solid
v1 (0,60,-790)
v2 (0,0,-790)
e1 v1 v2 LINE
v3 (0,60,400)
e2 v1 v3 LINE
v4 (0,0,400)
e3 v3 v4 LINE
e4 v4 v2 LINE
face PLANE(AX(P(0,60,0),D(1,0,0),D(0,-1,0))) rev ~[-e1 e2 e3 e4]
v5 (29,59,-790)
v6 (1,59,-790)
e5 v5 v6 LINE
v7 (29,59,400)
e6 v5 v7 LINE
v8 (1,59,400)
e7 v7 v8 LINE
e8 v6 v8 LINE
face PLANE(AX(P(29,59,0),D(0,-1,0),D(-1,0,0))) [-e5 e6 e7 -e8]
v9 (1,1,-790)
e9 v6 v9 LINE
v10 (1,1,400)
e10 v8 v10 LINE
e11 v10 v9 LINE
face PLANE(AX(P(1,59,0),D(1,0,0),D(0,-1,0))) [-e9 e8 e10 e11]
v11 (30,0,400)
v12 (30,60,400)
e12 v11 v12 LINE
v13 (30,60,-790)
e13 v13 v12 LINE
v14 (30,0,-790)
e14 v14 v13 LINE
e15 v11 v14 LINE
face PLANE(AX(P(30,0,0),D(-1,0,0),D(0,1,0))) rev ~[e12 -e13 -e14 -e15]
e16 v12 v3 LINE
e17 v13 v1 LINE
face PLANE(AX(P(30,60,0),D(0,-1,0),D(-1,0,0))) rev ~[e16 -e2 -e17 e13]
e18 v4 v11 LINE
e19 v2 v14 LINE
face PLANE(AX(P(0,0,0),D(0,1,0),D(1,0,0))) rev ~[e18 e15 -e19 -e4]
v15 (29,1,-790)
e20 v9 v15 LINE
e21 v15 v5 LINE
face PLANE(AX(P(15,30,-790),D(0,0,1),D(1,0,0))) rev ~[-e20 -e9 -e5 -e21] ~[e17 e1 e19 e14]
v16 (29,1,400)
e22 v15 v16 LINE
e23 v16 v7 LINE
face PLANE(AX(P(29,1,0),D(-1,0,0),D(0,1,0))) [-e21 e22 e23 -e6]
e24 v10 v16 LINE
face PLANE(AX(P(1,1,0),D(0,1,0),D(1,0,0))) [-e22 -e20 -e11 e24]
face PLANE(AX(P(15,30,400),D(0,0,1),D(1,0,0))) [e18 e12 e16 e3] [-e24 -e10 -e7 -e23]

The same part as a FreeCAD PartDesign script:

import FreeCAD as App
import Part
import Sketcher
from FreeCAD import Vector
Q = App.Units.Quantity


def add_polygon(sketch, points):
    """Adds a closed chain of lines whose ends are joined by coincident constraints."""
    first, n = sketch.GeometryCount, len(points)
    for a, b in zip(points, points[1:] + points[:1]):
        sketch.addGeometry(Part.LineSegment(App.Vector(*a, 0), App.Vector(*b, 0)), False)
    for i in range(n):
        sketch.addConstraint(Sketcher.Constraint("Coincident", first + i, 2, first + (i + 1) % n, 1))

doc = App.newDocument("Part")
params = doc.addObject("Spreadsheet::Sheet", "Params")
for row, (alias, value) in enumerate([
    ("sketch1_width", "30 mm"),
    ("sketch1_width2", "28 mm"),
    ("sketch1_height", "60 mm"),
    ("sketch1_height2", "58 mm"),
    ("pad1_length", "400 mm"),
    ("sketch2_width", "30 mm"),
    ("sketch2_width2", "28 mm"),
    ("sketch2_height", "60 mm"),
    ("sketch2_height2", "58 mm"),
    ("pad2_length", "790 mm"),
], start=1):
    params.set(f"A{row}", alias)
    params.set(f"B{row}", "=" + value)
    params.setAlias(f"B{row}", alias)

body = doc.addObject("PartDesign::Body", "Body")

sketch1 = body.newObject("Sketcher::SketchObject", "Sketch")
sketch1.AttachmentSupport = (doc.getObject("XY_Plane"), [""])
sketch1.MapMode = "FlatFace"
add_polygon(sketch1, [(0, 0), (30, 0), (30, 60), (0, 60)])
add_polygon(sketch1, [(29, 59), (29, 1), (1, 1), (1, 59)])
sketch1.addConstraint([
    Sketcher.Constraint("Horizontal", 0),
    Sketcher.Constraint("Vertical", 1),
    Sketcher.Constraint("Horizontal", 2),
    Sketcher.Constraint("Vertical", 3),
    Sketcher.Constraint("Vertical", 4),
    Sketcher.Constraint("Horizontal", 5),
    Sketcher.Constraint("Vertical", 6),
    Sketcher.Constraint("Horizontal", 7),
    Sketcher.Constraint("Coincident", 3, 2, -1, 1),
    Sketcher.Constraint("DistanceX", 0, 1, 0, 2, Q("30 mm")),
    Sketcher.Constraint("DistanceX", 5, 2, 5, 1, Q("28 mm")),
    Sketcher.Constraint("DistanceY", 1, 1, 1, 2, Q("60 mm")),
    Sketcher.Constraint("DistanceY", 4, 2, 4, 1, Q("58 mm")),
    Sketcher.Constraint("DistanceX", -1, 1, 4, 2, Q("29 mm")),
    Sketcher.Constraint("DistanceY", -1, 1, 4, 2, Q("1 mm")),
])
sketch1.setExpression("Constraints[17]", "Params.sketch1_width")
sketch1.setExpression("Constraints[18]", "Params.sketch1_width2")
sketch1.setExpression("Constraints[19]", "Params.sketch1_height")
sketch1.setExpression("Constraints[20]", "Params.sketch1_height2")
pad1 = body.newObject("PartDesign::Pad", "Pad")
pad1.Profile = sketch1
pad1.setExpression("Length", "Params.pad1_length")

sketch2 = body.newObject("Sketcher::SketchObject", "Sketch001")
sketch2.AttachmentSupport = (doc.getObject("XY_Plane"), [""])
sketch2.MapMode = "FlatFace"
add_polygon(sketch2, [(0, 0), (30, 0), (30, 60), (0, 60)])
add_polygon(sketch2, [(29, 59), (29, 1), (1, 1), (1, 59)])
sketch2.addConstraint([
    Sketcher.Constraint("Horizontal", 0),
    Sketcher.Constraint("Vertical", 1),
    Sketcher.Constraint("Horizontal", 2),
    Sketcher.Constraint("Vertical", 3),
    Sketcher.Constraint("Vertical", 4),
    Sketcher.Constraint("Horizontal", 5),
    Sketcher.Constraint("Vertical", 6),
    Sketcher.Constraint("Horizontal", 7),
    Sketcher.Constraint("Coincident", 3, 2, -1, 1),
    Sketcher.Constraint("DistanceX", 0, 1, 0, 2, Q("30 mm")),
    Sketcher.Constraint("DistanceX", 5, 2, 5, 1, Q("28 mm")),
    Sketcher.Constraint("DistanceY", 1, 1, 1, 2, Q("60 mm")),
    Sketcher.Constraint("DistanceY", 4, 2, 4, 1, Q("58 mm")),
    Sketcher.Constraint("DistanceX", -1, 1, 4, 2, Q("29 mm")),
    Sketcher.Constraint("DistanceY", -1, 1, 4, 2, Q("1 mm")),
])
sketch2.setExpression("Constraints[17]", "Params.sketch2_width")
sketch2.setExpression("Constraints[18]", "Params.sketch2_width2")
sketch2.setExpression("Constraints[19]", "Params.sketch2_height")
sketch2.setExpression("Constraints[20]", "Params.sketch2_height2")
pad2 = body.newObject("PartDesign::Pad", "Pad001")
pad2.Profile = sketch2
pad2.setExpression("Length", "Params.pad2_length")
pad2.Reversed = True

doc.recompute()
